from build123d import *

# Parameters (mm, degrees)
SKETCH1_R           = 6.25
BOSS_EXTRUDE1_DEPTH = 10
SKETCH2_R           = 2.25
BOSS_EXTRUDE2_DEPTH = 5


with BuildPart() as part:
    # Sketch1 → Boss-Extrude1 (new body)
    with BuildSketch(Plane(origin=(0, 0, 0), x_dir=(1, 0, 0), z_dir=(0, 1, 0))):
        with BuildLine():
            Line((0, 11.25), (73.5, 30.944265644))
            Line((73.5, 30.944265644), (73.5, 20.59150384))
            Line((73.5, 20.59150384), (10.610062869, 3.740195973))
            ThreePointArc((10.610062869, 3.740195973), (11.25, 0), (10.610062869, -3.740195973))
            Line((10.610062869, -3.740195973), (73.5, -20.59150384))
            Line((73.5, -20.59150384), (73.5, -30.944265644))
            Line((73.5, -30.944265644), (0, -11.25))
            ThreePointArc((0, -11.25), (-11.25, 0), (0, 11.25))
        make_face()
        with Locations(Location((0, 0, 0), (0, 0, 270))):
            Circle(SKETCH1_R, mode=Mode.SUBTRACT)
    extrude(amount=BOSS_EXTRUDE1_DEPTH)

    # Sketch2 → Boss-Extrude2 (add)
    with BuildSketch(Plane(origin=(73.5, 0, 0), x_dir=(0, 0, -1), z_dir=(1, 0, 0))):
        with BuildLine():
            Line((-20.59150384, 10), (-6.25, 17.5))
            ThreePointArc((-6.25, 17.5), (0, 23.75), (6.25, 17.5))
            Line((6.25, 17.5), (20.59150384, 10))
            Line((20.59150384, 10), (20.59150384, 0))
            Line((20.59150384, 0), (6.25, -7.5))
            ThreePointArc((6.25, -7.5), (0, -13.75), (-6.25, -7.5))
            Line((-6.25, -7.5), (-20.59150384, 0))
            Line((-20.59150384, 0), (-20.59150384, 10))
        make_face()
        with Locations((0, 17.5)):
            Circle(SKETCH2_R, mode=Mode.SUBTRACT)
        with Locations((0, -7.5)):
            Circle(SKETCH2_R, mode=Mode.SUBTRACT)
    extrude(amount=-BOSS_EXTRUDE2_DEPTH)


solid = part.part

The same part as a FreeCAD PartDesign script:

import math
import FreeCAD as App
import Part
import Sketcher
Q = App.Units.Quantity

doc = App.newDocument("Part")
params = doc.addObject("Spreadsheet::Sheet", "Params")
for row, (alias, value) in enumerate([
    ("sketch1_diameter", "12.5 mm"),
    ("sketch1_radius", "11.25 mm"),
    ("pad1_length", "10 mm"),
    ("sketch2_diameter", "4.5 mm"),
    ("sketch2_width", "10 mm"),
    ("sketch2_radius", "6.25 mm"),
    ("pad2_length", "5 mm"),
], start=1):
    params.set(f"A{row}", alias)
    params.set(f"B{row}", "=" + value)
    params.setAlias(f"B{row}", alias)

body = doc.addObject("PartDesign::Body", "Body")

# Sketch on XZ plane
sketch1 = doc.addObject("Sketcher::SketchObject", "Sketch")
body.addObject(sketch1)
sketch1.AttachmentSupport = (doc.XZ_Plane, [""])
sketch1.MapMode = "FlatFace"
sketch1.addGeometry([
    Part.LineSegment(App.Vector(73.5, -30.944266, 0), App.Vector(0, -11.25, 0)),  # 0
    Part.ArcOfCircle(Part.Circle(App.Vector(0, 0, 0), App.Vector(0, 0, 1), 11.25), math.radians(90), math.radians(270)),  # 1
    Part.LineSegment(App.Vector(0, 11.25, 0), App.Vector(73.5, 30.944266, 0)),  # 2
    Part.LineSegment(App.Vector(73.5, 30.944266, 0), App.Vector(73.5, 20.591504, 0)),  # 3
    Part.LineSegment(App.Vector(73.5, 20.591504, 0), App.Vector(10.610063, 3.740196, 0)),  # 4
    Part.ArcOfCircle(Part.Circle(App.Vector(0, 0, 0), App.Vector(0, 0, 1), 11.25), math.radians(-19.418269), math.radians(19.418269)),  # 5
    Part.LineSegment(App.Vector(10.610063, -3.740196, 0), App.Vector(73.5, -20.591504, 0)),  # 6
    Part.LineSegment(App.Vector(73.5, -20.591504, 0), App.Vector(73.5, -30.944266, 0)),  # 7
    Part.Circle(App.Vector(0, 0, 0), App.Vector(0, 0, 1), 6.25),  # 8
], False)
sketch1.addConstraint([
    Sketcher.Constraint("Coincident", 0, 2, 1, 2),
    Sketcher.Constraint("Coincident", 1, 1, 2, 1),
    Sketcher.Constraint("Coincident", 2, 2, 3, 1),
    Sketcher.Constraint("Coincident", 3, 2, 4, 1),
    Sketcher.Constraint("Coincident", 4, 2, 5, 2),
    Sketcher.Constraint("Coincident", 5, 1, 6, 1),
    Sketcher.Constraint("Coincident", 6, 2, 7, 1),
    Sketcher.Constraint("Coincident", 7, 2, 0, 1),
    Sketcher.Constraint("Vertical", 3),
    Sketcher.Constraint("Vertical", 7),
    Sketcher.Constraint("Coincident", 1, 3, -1, 1),
    Sketcher.Constraint("Coincident", 5, 3, -1, 1),
    Sketcher.Constraint("Coincident", 8, 3, -1, 1),
    Sketcher.Constraint("Equal", 1, 5),
    Sketcher.Constraint("Symmetric", 3, 2, 6, 2, -1),
    Sketcher.Constraint("PointOnObject", 0, 2, -2),
    Sketcher.Constraint("PointOnObject", 1, 1, -2),
    Sketcher.Constraint("Parallel", 2, 4),
    Sketcher.Constraint("Parallel", 0, 6),
    Sketcher.Constraint("Vertical", 4, 2, 5, 1),
    Sketcher.Constraint("Diameter", 8, 12.5),
    Sketcher.Constraint("Angle", 0, Q("165 deg")),
    Sketcher.Constraint("Radius", 1, 11.25),
    Sketcher.Constraint("DistanceX", -1, 1, 2, 2, 73.5),
    Sketcher.Constraint("DistanceY", 3, 2, 3, 1, 10.352762),
])
sketch1.setExpression("Constraints[20]", "Params.sketch1_diameter")
sketch1.setExpression("Constraints[22]", "Params.sketch1_radius")
pad1 = doc.addObject("PartDesign::Pad", "Pad")
body.addObject(pad1)
pad1.Profile = sketch1
pad1.setExpression("Length", "Params.pad1_length")
pad1.Reversed = True

# Sketch on YZ plane
sketch2 = doc.addObject("Sketcher::SketchObject", "Sketch001")
body.addObject(sketch2)
sketch2.AttachmentSupport = (doc.YZ_Plane, [""])
sketch2.MapMode = "FlatFace"
sketch2.AttachmentOffset = App.Placement(App.Vector(0, 0, 73.5), App.Rotation())
sketch2.addGeometry([
    Part.LineSegment(App.Vector(17.5, 6.25, 0), App.Vector(10, 20.591504, 0)),  # 0
    Part.LineSegment(App.Vector(10, 20.591504, 0), App.Vector(0, 20.591504, 0)),  # 1
    Part.LineSegment(App.Vector(0, 20.591504, 0), App.Vector(-7.5, 6.25, 0)),  # 2
    Part.ArcOfCircle(Part.Circle(App.Vector(-7.5, 0, 0), App.Vector(0, 0, 1), 6.25), math.radians(90), math.radians(270)),  # 3
    Part.LineSegment(App.Vector(-7.5, -6.25, 0), App.Vector(0, -20.591504, 0)),  # 4
    Part.LineSegment(App.Vector(0, -20.591504, 0), App.Vector(10, -20.591504, 0)),  # 5
    Part.LineSegment(App.Vector(10, -20.591504, 0), App.Vector(17.5, -6.25, 0)),  # 6
    Part.ArcOfCircle(Part.Circle(App.Vector(17.5, 0, 0), App.Vector(0, 0, 1), 6.25), math.radians(-90), math.radians(90)),  # 7
    Part.Circle(App.Vector(-7.5, 0, 0), App.Vector(0, 0, 1), 2.25),  # 8
    Part.Circle(App.Vector(17.5, 0, 0), App.Vector(0, 0, 1), 2.25),  # 9
], False)
sketch2.addConstraint([
    Sketcher.Constraint("Coincident", 0, 2, 1, 1),
    Sketcher.Constraint("Coincident", 1, 2, 2, 1),
    Sketcher.Constraint("Coincident", 2, 2, 3, 1),
    Sketcher.Constraint("Coincident", 3, 2, 4, 1),
    Sketcher.Constraint("Coincident", 4, 2, 5, 1),
    Sketcher.Constraint("Coincident", 5, 2, 6, 1),
    Sketcher.Constraint("Coincident", 6, 2, 7, 1),
    Sketcher.Constraint("Coincident", 7, 2, 0, 1),
    Sketcher.Constraint("Horizontal", 1),
    Sketcher.Constraint("Horizontal", 5),
    Sketcher.Constraint("Coincident", 8, 3, 3, 3),
    Sketcher.Constraint("Coincident", 9, 3, 7, 3),
    Sketcher.Constraint("Equal", 3, 7),
    Sketcher.Constraint("Equal", 8, 9),
    Sketcher.Constraint("Symmetric", 1, 2, 4, 2, -1, 1),
    Sketcher.Constraint("Symmetric", 2, 2, 3, 2, -1),
    Sketcher.Constraint("Symmetric", 6, 2, 7, 2, -1),
    Sketcher.Constraint("PointOnObject", 1, 2, -2),
    Sketcher.Constraint("Parallel", 0, 4),
    Sketcher.Constraint("Parallel", 2, 6),
    Sketcher.Constraint("Vertical", 8, 3, 2, 2),
    Sketcher.Constraint("Vertical", 9, 3, 6, 2),
    Sketcher.Constraint("Diameter", 8, 4.5),
    Sketcher.Constraint("DistanceX", 1, 2, 1, 1, 10.0),
    Sketcher.Constraint("Radius", 3, 6.25),
    Sketcher.Constraint("DistanceX", 3, 3, 7, 3, 25.0),
    Sketcher.Constraint("Distance", 0, 16.184212),
])
sketch2.setExpression("Constraints[22]", "Params.sketch2_diameter")
sketch2.setExpression("Constraints[23]", "Params.sketch2_width")
sketch2.setExpression("Constraints[24]", "Params.sketch2_radius")
pad2 = doc.addObject("PartDesign::Pad", "Pad001")
body.addObject(pad2)
pad2.Profile = sketch2
pad2.setExpression("Length", "Params.pad2_length")
pad2.Reversed = True

doc.recompute()
